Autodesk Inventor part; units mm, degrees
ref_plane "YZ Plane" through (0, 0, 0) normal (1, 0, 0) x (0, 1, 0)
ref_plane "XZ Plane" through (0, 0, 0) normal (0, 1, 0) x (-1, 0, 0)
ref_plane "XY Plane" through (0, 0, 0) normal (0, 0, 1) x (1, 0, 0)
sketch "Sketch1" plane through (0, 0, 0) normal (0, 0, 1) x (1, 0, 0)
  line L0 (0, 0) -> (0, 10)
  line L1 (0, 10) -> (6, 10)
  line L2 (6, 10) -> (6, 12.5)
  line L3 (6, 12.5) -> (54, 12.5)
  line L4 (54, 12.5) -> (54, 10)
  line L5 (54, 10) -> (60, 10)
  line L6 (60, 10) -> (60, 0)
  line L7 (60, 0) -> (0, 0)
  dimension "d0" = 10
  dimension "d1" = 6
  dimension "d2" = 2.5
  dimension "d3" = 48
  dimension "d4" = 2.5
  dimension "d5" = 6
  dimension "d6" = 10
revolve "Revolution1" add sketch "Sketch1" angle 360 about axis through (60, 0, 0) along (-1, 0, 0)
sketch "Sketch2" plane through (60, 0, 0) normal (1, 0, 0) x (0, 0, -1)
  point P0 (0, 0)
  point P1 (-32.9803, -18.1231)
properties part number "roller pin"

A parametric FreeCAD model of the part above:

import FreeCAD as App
import Part
import Sketcher
Q = App.Units.Quantity

doc = App.newDocument("Part")
body = doc.addObject("PartDesign::Body", "Body")

sketch1 = doc.addObject("Sketcher::SketchObject", "Sketch")
body.addObject(sketch1)
sketch1.AttachmentSupport = (doc.XY_Plane, [""])
sketch1.MapMode = "FlatFace"
sketch1.addGeometry([
    Part.LineSegment(App.Vector(0, 10, 0), App.Vector(0, 0, 0)),
    Part.LineSegment(App.Vector(0, 0, 0), App.Vector(60, 0, 0)),
    Part.LineSegment(App.Vector(60, 0, 0), App.Vector(60, 10, 0)),
    Part.LineSegment(App.Vector(60, 10, 0), App.Vector(54, 10, 0)),
    Part.LineSegment(App.Vector(54, 10, 0), App.Vector(54, 12.5, 0)),
    Part.LineSegment(App.Vector(54, 12.5, 0), App.Vector(6, 12.5, 0)),
    Part.LineSegment(App.Vector(6, 12.5, 0), App.Vector(6, 10, 0)),
    Part.LineSegment(App.Vector(6, 10, 0), App.Vector(0, 10, 0)),
], False)
sketch1.addConstraint([
    Sketcher.Constraint("Coincident", 0, 2, 1, 1),
    Sketcher.Constraint("Coincident", 1, 2, 2, 1),
    Sketcher.Constraint("Coincident", 2, 2, 3, 1),
    Sketcher.Constraint("Coincident", 3, 2, 4, 1),
    Sketcher.Constraint("Coincident", 4, 2, 5, 1),
    Sketcher.Constraint("Coincident", 5, 2, 6, 1),
    Sketcher.Constraint("Coincident", 6, 2, 7, 1),
    Sketcher.Constraint("Coincident", 7, 2, 0, 1),
    Sketcher.Constraint("Vertical", 0),
    Sketcher.Constraint("Horizontal", 1),
    Sketcher.Constraint("Vertical", 2),
    Sketcher.Constraint("Horizontal", 3),
    Sketcher.Constraint("Vertical", 4),
    Sketcher.Constraint("Horizontal", 5),
    Sketcher.Constraint("Vertical", 6),
    Sketcher.Constraint("Horizontal", 7),
    Sketcher.Constraint("Coincident", 0, 2, -1, 1),
    Sketcher.Constraint("Horizontal", 3, 2, 6, 2),
    Sketcher.Constraint("Equal", 3, 7),
    Sketcher.Constraint("DistanceX", 3, 2, 3, 1, Q("6 mm")),
    Sketcher.Constraint("DistanceX", 5, 2, 5, 1, Q("48 mm")),
    Sketcher.Constraint("DistanceY", 0, 2, 0, 1, Q("10 mm")),
    Sketcher.Constraint("DistanceY", 4, 1, 4, 2, Q("2.5 mm")),
])
revolution = doc.addObject("PartDesign::Revolution", "Revolution")
body.addObject(revolution)
revolution.Profile = sketch1
revolution.ReferenceAxis = (sketch1, ["H_Axis"])
revolution.Angle = 360

doc.recompute()
